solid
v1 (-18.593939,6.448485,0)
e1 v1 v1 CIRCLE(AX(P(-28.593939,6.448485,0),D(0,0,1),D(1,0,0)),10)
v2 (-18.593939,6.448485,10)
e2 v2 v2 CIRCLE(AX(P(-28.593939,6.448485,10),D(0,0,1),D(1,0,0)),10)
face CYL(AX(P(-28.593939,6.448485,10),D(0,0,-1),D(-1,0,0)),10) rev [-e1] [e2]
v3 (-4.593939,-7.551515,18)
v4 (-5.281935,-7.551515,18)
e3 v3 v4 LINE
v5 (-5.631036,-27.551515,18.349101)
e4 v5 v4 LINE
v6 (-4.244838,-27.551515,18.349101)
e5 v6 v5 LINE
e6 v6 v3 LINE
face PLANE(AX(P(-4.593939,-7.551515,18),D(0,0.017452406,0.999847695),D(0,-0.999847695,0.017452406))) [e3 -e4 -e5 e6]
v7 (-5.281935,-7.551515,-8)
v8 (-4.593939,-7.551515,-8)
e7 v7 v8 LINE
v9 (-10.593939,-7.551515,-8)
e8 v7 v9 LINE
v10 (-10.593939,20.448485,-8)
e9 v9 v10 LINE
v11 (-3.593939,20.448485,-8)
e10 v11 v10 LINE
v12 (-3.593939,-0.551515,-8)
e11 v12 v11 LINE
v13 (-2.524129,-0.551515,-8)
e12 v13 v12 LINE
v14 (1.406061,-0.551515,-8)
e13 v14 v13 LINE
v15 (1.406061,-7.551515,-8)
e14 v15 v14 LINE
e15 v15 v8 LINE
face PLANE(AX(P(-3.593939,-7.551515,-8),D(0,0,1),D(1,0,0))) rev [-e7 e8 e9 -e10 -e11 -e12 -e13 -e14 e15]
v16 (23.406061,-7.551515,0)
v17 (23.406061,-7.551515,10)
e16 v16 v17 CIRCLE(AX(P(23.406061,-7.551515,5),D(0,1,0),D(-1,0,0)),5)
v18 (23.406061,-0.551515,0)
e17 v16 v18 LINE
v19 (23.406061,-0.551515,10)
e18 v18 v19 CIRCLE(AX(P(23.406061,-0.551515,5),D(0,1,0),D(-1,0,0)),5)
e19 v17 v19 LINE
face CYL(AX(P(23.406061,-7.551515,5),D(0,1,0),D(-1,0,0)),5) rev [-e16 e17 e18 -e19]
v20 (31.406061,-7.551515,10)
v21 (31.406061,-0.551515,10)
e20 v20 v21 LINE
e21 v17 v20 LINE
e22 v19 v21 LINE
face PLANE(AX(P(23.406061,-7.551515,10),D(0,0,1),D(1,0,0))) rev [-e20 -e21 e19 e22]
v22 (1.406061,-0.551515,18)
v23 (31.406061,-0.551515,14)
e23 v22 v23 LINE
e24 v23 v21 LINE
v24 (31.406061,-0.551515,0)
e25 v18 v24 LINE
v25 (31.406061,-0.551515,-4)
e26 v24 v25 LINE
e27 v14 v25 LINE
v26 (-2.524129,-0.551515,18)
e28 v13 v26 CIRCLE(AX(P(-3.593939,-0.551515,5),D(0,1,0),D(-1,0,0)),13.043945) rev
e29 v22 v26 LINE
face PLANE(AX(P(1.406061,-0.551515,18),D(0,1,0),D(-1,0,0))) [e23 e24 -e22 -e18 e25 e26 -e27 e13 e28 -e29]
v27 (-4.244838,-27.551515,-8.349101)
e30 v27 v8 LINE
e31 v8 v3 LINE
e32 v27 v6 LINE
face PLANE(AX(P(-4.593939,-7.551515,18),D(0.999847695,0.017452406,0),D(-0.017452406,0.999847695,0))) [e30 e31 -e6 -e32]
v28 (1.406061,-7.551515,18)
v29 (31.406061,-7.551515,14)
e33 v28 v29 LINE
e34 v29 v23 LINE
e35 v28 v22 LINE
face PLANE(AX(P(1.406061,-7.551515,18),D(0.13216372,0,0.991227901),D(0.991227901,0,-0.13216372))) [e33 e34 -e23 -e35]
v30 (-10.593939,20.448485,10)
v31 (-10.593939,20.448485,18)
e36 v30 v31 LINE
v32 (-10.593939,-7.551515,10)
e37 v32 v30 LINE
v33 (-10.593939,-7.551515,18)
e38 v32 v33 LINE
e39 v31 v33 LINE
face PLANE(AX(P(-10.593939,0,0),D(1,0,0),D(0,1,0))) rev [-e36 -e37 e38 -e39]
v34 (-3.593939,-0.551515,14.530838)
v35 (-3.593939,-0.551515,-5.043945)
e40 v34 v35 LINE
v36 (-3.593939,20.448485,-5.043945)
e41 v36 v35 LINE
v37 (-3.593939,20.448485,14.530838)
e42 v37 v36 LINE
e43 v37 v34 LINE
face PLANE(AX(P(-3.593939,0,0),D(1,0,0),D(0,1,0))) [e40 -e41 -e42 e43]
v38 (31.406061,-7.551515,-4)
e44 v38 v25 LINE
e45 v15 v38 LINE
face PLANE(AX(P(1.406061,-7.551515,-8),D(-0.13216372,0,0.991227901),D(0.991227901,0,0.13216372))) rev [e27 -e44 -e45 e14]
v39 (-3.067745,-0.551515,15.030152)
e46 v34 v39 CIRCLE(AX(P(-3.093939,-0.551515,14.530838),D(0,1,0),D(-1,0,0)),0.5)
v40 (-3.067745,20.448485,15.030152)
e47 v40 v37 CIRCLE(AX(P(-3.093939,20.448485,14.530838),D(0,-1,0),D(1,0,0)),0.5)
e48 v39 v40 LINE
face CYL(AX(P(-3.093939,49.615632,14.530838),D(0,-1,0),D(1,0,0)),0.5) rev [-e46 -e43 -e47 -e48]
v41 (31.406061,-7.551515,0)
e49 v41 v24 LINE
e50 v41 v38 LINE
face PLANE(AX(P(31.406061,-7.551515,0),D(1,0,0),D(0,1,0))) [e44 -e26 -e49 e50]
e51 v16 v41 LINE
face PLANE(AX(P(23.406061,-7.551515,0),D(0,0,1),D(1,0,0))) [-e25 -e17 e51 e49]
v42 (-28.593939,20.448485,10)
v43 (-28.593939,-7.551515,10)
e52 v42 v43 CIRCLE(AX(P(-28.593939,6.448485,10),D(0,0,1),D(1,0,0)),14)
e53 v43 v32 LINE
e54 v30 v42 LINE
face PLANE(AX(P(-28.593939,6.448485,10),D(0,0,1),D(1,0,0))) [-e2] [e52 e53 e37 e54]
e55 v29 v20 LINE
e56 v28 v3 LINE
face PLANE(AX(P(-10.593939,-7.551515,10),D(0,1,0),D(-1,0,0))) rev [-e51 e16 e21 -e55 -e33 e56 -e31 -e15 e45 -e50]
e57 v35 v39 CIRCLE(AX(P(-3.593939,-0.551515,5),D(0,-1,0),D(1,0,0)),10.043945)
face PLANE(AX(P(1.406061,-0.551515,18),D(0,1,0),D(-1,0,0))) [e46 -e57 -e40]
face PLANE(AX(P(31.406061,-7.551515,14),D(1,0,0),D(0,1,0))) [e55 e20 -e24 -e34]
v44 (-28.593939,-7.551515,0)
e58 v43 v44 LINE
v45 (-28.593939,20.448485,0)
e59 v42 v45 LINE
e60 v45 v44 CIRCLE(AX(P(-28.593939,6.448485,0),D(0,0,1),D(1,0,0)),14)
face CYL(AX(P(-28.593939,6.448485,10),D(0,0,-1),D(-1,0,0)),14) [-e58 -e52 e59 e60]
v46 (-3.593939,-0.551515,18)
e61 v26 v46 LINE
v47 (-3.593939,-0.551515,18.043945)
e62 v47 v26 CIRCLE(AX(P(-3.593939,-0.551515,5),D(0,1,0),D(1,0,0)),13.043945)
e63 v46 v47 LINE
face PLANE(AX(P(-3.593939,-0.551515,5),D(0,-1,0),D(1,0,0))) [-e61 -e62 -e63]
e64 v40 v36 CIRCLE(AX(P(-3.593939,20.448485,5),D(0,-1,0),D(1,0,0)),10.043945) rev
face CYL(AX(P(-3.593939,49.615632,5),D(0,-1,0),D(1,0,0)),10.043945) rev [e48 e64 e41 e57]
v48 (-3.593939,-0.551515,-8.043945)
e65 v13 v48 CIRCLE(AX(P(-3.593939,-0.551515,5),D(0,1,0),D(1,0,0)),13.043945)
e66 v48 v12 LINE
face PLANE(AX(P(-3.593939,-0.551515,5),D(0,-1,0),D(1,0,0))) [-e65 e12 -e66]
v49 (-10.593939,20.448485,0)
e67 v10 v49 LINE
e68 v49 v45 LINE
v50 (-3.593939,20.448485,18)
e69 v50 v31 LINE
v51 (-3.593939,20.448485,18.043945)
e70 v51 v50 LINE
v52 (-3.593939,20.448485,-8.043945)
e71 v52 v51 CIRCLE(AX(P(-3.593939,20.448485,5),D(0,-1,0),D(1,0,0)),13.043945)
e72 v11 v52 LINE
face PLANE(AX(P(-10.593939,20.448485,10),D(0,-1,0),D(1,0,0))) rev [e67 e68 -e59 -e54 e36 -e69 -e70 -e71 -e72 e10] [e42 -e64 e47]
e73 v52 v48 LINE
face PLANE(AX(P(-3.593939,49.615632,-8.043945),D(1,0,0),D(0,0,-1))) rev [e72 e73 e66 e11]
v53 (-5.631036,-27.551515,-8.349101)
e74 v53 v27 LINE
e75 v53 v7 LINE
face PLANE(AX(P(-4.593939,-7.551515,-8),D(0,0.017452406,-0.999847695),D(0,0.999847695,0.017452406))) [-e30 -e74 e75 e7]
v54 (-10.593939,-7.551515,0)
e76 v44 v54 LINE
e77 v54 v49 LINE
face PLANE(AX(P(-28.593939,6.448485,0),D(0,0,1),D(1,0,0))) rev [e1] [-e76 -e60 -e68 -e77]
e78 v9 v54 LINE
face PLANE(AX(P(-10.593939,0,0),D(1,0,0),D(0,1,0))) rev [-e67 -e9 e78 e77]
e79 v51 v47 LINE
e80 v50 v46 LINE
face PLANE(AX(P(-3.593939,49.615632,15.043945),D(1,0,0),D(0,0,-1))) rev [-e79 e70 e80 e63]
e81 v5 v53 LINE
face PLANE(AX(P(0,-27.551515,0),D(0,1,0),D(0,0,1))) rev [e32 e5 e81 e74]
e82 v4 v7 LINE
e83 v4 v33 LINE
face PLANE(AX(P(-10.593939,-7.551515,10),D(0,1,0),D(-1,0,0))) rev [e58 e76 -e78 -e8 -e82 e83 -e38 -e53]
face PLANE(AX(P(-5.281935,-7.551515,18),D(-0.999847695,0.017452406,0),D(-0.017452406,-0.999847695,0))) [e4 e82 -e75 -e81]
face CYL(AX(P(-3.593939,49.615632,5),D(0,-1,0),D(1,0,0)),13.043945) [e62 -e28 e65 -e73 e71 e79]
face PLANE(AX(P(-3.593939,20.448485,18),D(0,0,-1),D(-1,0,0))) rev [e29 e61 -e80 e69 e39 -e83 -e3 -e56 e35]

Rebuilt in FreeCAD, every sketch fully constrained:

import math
import FreeCAD as App
import Part
import Sketcher

V = App.Vector


def edges_at(feature, points):
    """Names of the edges that pass closest to the given points."""
    edges = feature.Shape.Edges
    near = lambda p: min(range(len(edges)), key=lambda i: edges[i].distToShape(Part.Vertex(*p))[0])
    return sorted({f"Edge{near(p) + 1}" for p in points})


def add_polygon(sketch, points):
    """Adds a closed chain of lines whose ends are joined by coincident constraints."""
    first, n = sketch.GeometryCount, len(points)
    for a, b in zip(points, points[1:] + points[:1]):
        sketch.addGeometry(Part.LineSegment(App.Vector(*a, 0), App.Vector(*b, 0)), False)
    for i in range(n):
        sketch.addConstraint(Sketcher.Constraint("Coincident", first + i, 2, first + (i + 1) % n, 1))

doc = App.newDocument("Part")
body = doc.addObject("PartDesign::Body", "Body")

sketch1 = doc.addObject("Sketcher::SketchObject", "Sketch")
body.addObject(sketch1)
sketch1.AttachmentSupport = (doc.XY_Plane, [""])
sketch1.MapMode = "FlatFace"
sketch1.addGeometry(Part.LineSegment(V(-11, -8, 0), V(-11, 20, 0)), False)
sketch1.addGeometry(Part.LineSegment(V(-11, 20, 0), V(-29, 20, 0)), False)
sketch1.addGeometry(Part.ArcOfCircle(Part.Circle(V(-29, 6, 0), V(0, 0, 1), 14), math.radians(90), math.radians(270)), False)
sketch1.addGeometry(Part.LineSegment(V(-29, -8, 0), V(-11, -8, 0)), False)
sketch1.addGeometry(Part.Circle(V(-29, 6, 0), V(0, 0, 1), 10), False)
sketch1.addConstraint(Sketcher.Constraint("Coincident", 0, 2, 1, 1))
sketch1.addConstraint(Sketcher.Constraint("Tangent", 1, 2, 2, 1))
sketch1.addConstraint(Sketcher.Constraint("Tangent", 2, 2, 3, 1))
sketch1.addConstraint(Sketcher.Constraint("Coincident", 3, 2, 0, 1))
sketch1.addConstraint(Sketcher.Constraint("Vertical", 0))
sketch1.addConstraint(Sketcher.Constraint("Horizontal", 1))
sketch1.addConstraint(Sketcher.Constraint("Horizontal", 3))
sketch1.addConstraint(Sketcher.Constraint("Coincident", 4, 3, 2, 3))
sketch1.addConstraint(Sketcher.Constraint("Diameter", 4, 20.0))
sketch1.addConstraint(Sketcher.Constraint("Radius", 2, 14.0))
sketch1.addConstraint(Sketcher.Constraint("DistanceX", 1, 2, 1, 1, 18.0))
sketch1.addConstraint(Sketcher.Constraint("DistanceX", 2, 3, -1, 1, 28.593939))
sketch1.addConstraint(Sketcher.Constraint("DistanceY", -1, 1, 2, 3, 6.448485))
pad1 = doc.addObject("PartDesign::Pad", "Pad")
body.addObject(pad1)
pad1.Profile = sketch1
pad1.Length = 10

sketch2 = doc.addObject("Sketcher::SketchObject", "Sketch001")
body.addObject(sketch2)
sketch2.AttachmentSupport = (doc.YZ_Plane, [""])
sketch2.MapMode = "FlatFace"
sketch2.AttachmentOffset = App.Placement(V(0, 0, -10.593939), App.Rotation())
add_polygon(sketch2, [(20, 18), (-8, 18), (-8, -8), (20, -8)])
sketch2.addConstraint(Sketcher.Constraint("Horizontal", 0))
sketch2.addConstraint(Sketcher.Constraint("Vertical", 1))
sketch2.addConstraint(Sketcher.Constraint("Horizontal", 2))
sketch2.addConstraint(Sketcher.Constraint("Vertical", 3))
sketch2.addConstraint(Sketcher.Constraint("DistanceX", 0, 2, 0, 1, 28.0))
sketch2.addConstraint(Sketcher.Constraint("DistanceY", 1, 2, 1, 1, 26.0))
sketch2.addConstraint(Sketcher.Constraint("DistanceY", -1, 1, 0, 2, 18.0))
sketch2.addConstraint(Sketcher.Constraint("DistanceX", 0, 2, -1, 1, 7.551515))
pad2 = doc.addObject("PartDesign::Pad", "Pad001")
body.addObject(pad2)
pad2.Profile = sketch2
pad2.Length = 7

sketch3 = doc.addObject("Sketcher::SketchObject", "Sketch002")
body.addObject(sketch3)
sketch3.AttachmentSupport = (doc.YZ_Plane, [""])
sketch3.MapMode = "FlatFace"
sketch3.AttachmentOffset = App.Placement(V(0, 0, -3.593939), App.Rotation())
add_polygon(sketch3, [(-1, 18), (-8, 18), (-8, -8), (-1, -8)])
sketch3.addConstraint(Sketcher.Constraint("Horizontal", 0))
sketch3.addConstraint(Sketcher.Constraint("Vertical", 1))
sketch3.addConstraint(Sketcher.Constraint("Horizontal", 2))
sketch3.addConstraint(Sketcher.Constraint("Vertical", 3))
sketch3.addConstraint(Sketcher.Constraint("DistanceX", 0, 2, 0, 1, 7.0))
sketch3.addConstraint(Sketcher.Constraint("DistanceY", 1, 2, 1, 1, 26.0))
sketch3.addConstraint(Sketcher.Constraint("DistanceY", -1, 1, 0, 2, 18.0))
sketch3.addConstraint(Sketcher.Constraint("DistanceX", 0, 2, -1, 1, 7.551515))
pad3 = doc.addObject("PartDesign::Pad", "Pad002")
body.addObject(pad3)
pad3.Profile = sketch3
pad3.Length = 5

sketch4 = doc.addObject("Sketcher::SketchObject", "Sketch003")
body.addObject(sketch4)
sketch4.AttachmentSupport = (doc.XZ_Plane, [""])
sketch4.MapMode = "FlatFace"
sketch4.AttachmentOffset = App.Placement(V(0, 0, 0.551515), App.Rotation())
sketch4.addGeometry(Part.LineSegment(V(1.4, -8, 0), V(1.4, 18, 0)), False)
sketch4.addGeometry(Part.LineSegment(V(1.4, 18, 0), V(31.4, 14, 0)), False)
sketch4.addGeometry(Part.LineSegment(V(31.4, 14, 0), V(31.4, 10, 0)), False)
sketch4.addGeometry(Part.LineSegment(V(31.4, 10, 0), V(23.4, 10, 0)), False)
sketch4.addGeometry(Part.ArcOfCircle(Part.Circle(V(23.4, 5, 0), V(0, 0, 1), 5), math.radians(90), math.radians(270)), False)
sketch4.addGeometry(Part.LineSegment(V(23.4, 0, 0), V(31.4, 0, 0)), False)
sketch4.addGeometry(Part.LineSegment(V(31.4, 0, 0), V(31.4, -4, 0)), False)
sketch4.addGeometry(Part.LineSegment(V(31.4, -4, 0), V(1.4, -8, 0)), False)
sketch4.addConstraint(Sketcher.Constraint("Coincident", 0, 2, 1, 1))
sketch4.addConstraint(Sketcher.Constraint("Coincident", 1, 2, 2, 1))
sketch4.addConstraint(Sketcher.Constraint("Coincident", 2, 2, 3, 1))
sketch4.addConstraint(Sketcher.Constraint("Tangent", 3, 2, 4, 1))
sketch4.addConstraint(Sketcher.Constraint("Tangent", 4, 2, 5, 1))
sketch4.addConstraint(Sketcher.Constraint("Coincident", 5, 2, 6, 1))
sketch4.addConstraint(Sketcher.Constraint("Coincident", 6, 2, 7, 1))
sketch4.addConstraint(Sketcher.Constraint("Coincident", 7, 2, 0, 1))
sketch4.addConstraint(Sketcher.Constraint("Vertical", 0))
sketch4.addConstraint(Sketcher.Constraint("Vertical", 2))
sketch4.addConstraint(Sketcher.Constraint("Horizontal", 3))
sketch4.addConstraint(Sketcher.Constraint("Horizontal", 5))
sketch4.addConstraint(Sketcher.Constraint("Vertical", 6))
sketch4.addConstraint(Sketcher.Constraint("PointOnObject", 4, 2, -1))
sketch4.addConstraint(Sketcher.Constraint("Vertical", 2, 2, 5, 2))
sketch4.addConstraint(Sketcher.Constraint("Equal", 2, 6))
sketch4.addConstraint(Sketcher.Constraint("Equal", 1, 7))
sketch4.addConstraint(Sketcher.Constraint("Radius", 4, 5.0))
sketch4.addConstraint(Sketcher.Constraint("DistanceX", 3, 2, 3, 1, 8.0))
sketch4.addConstraint(Sketcher.Constraint("DistanceY", 0, 1, 0, 2, 26.0))
sketch4.addConstraint(Sketcher.Constraint("DistanceY", 2, 2, 2, 1, 4.0))
sketch4.addConstraint(Sketcher.Constraint("DistanceX", 0, 2, 4, 3, 22.0))
sketch4.addConstraint(Sketcher.Constraint("DistanceX", -1, 1, 4, 3, 23.406061))
pad4 = doc.addObject("PartDesign::Pad", "Pad003")
body.addObject(pad4)
pad4.Profile = sketch4
pad4.Length = 7

sketch5 = doc.addObject("Sketcher::SketchObject", "Sketch004")
body.addObject(sketch5)
sketch5.AttachmentSupport = (doc.XZ_Plane, [""])
sketch5.MapMode = "FlatFace"
sketch5.AttachmentOffset = App.Placement(V(0, 0, 0.551515), App.Rotation())
sketch5.addGeometry(Part.LineSegment(V(-3.6, -8, 0), V(-3.6, -5, 0)), False)
sketch5.addGeometry(Part.ArcOfCircle(Part.Circle(V(-3.6, 5, 0), V(0, 0, 1), 10), math.radians(-90), math.radians(90)), False)
sketch5.addGeometry(Part.LineSegment(V(-3.6, 15, 0), V(-3.6, 18, 0)), False)
sketch5.addGeometry(Part.ArcOfCircle(Part.Circle(V(-3.6, 5, 0), V(0, 0, 1), 13), math.radians(-90), math.radians(90)), False)
sketch5.addConstraint(Sketcher.Constraint("Coincident", 0, 2, 1, 1))
sketch5.addConstraint(Sketcher.Constraint("Coincident", 1, 2, 2, 1))
sketch5.addConstraint(Sketcher.Constraint("Coincident", 2, 2, 3, 2))
sketch5.addConstraint(Sketcher.Constraint("Coincident", 3, 1, 0, 1))
sketch5.addConstraint(Sketcher.Constraint("Vertical", 0))
sketch5.addConstraint(Sketcher.Constraint("Vertical", 2))
sketch5.addConstraint(Sketcher.Constraint("Coincident", 3, 3, 1, 3))
sketch5.addConstraint(Sketcher.Constraint("Vertical", 3, 3, 0, 2))
sketch5.addConstraint(Sketcher.Constraint("Vertical", 0, 2, 1, 2))
sketch5.addConstraint(Sketcher.Constraint("DistanceY", 0, 1, 0, 2, 3.0))
sketch5.addConstraint(Sketcher.Constraint("DistanceY", -1, 1, 1, 3, 5.0))
sketch5.addConstraint(Sketcher.Constraint("Radius", 1, 10.043945))
sketch5.addConstraint(Sketcher.Constraint("DistanceX", 1, 3, -1, 1, 3.593939))
pad5 = doc.addObject("PartDesign::Pad", "Pad004")
body.addObject(pad5)
pad5.Profile = sketch5
pad5.Length = 21
pad5.Reversed = True
doc.recompute()

fillet = doc.addObject("PartDesign::Fillet", "Fillet")
body.addObject(fillet)
fillet.Base = (pad5, edges_at(pad5, [(-3.594, 9.948, 15.044)]))
fillet.Radius = 0.5

sketch6 = doc.addObject("Sketcher::SketchObject", "Sketch005")
body.addObject(sketch6)
sketch6.AttachmentSupport = (doc.XZ_Plane, [""])
sketch6.MapMode = "FlatFace"
sketch6.AttachmentOffset = App.Placement(V(0, 0, 7.551515), App.Rotation())
add_polygon(sketch6, [(-5.3, 18), (-5.3, -8), (-4.6, -8), (-4.6, 18)])
sketch6.addConstraint(Sketcher.Constraint("Vertical", 0))
sketch6.addConstraint(Sketcher.Constraint("Horizontal", 1))
sketch6.addConstraint(Sketcher.Constraint("Vertical", 2))
sketch6.addConstraint(Sketcher.Constraint("Horizontal", 3))
sketch6.addConstraint(Sketcher.Constraint("DistanceY", 0, 2, 0, 1, 26.0))
sketch6.addConstraint(Sketcher.Constraint("DistanceY", 0, 2, -1, 1, 8.0))
sketch6.addConstraint(Sketcher.Constraint("DistanceX", 1, 1, 1, 2, 0.687996))
sketch6.addConstraint(Sketcher.Constraint("DistanceX", 1, 2, -1, 1, 4.593939))
pad6 = doc.addObject("PartDesign::Pad", "Pad005")
body.addObject(pad6)
pad6.Profile = sketch6
pad6.Length = 20
pad6.TaperAngle = 1

sketch7 = doc.addObject("Sketcher::SketchObject", "Sketch006")
body.addObject(sketch7)
sketch7.AttachmentSupport = (doc.XZ_Plane, [""])
sketch7.MapMode = "FlatFace"
sketch7.AttachmentOffset = App.Placement(V(0, 0, 7.551515), App.Rotation())
add_polygon(sketch7, [(-5.3, 18), (-5.3, -8), (-4.6, -8), (-4.6, 18)])
sketch7.addConstraint(Sketcher.Constraint("Vertical", 0))
sketch7.addConstraint(Sketcher.Constraint("Horizontal", 1))
sketch7.addConstraint(Sketcher.Constraint("Vertical", 2))
sketch7.addConstraint(Sketcher.Constraint("Horizontal", 3))
sketch7.addConstraint(Sketcher.Constraint("DistanceY", 0, 2, 0, 1, 26.0))
sketch7.addConstraint(Sketcher.Constraint("DistanceY", 0, 2, -1, 1, 8.0))
sketch7.addConstraint(Sketcher.Constraint("DistanceX", 1, 1, 1, 2, 0.687996))
sketch7.addConstraint(Sketcher.Constraint("DistanceX", 1, 2, -1, 1, 4.593939))
pad7 = doc.addObject("PartDesign::Pad", "Pad006")
body.addObject(pad7)
pad7.Profile = sketch7
pad7.Length = 10
pad7.Reversed = True

doc.recompute()
